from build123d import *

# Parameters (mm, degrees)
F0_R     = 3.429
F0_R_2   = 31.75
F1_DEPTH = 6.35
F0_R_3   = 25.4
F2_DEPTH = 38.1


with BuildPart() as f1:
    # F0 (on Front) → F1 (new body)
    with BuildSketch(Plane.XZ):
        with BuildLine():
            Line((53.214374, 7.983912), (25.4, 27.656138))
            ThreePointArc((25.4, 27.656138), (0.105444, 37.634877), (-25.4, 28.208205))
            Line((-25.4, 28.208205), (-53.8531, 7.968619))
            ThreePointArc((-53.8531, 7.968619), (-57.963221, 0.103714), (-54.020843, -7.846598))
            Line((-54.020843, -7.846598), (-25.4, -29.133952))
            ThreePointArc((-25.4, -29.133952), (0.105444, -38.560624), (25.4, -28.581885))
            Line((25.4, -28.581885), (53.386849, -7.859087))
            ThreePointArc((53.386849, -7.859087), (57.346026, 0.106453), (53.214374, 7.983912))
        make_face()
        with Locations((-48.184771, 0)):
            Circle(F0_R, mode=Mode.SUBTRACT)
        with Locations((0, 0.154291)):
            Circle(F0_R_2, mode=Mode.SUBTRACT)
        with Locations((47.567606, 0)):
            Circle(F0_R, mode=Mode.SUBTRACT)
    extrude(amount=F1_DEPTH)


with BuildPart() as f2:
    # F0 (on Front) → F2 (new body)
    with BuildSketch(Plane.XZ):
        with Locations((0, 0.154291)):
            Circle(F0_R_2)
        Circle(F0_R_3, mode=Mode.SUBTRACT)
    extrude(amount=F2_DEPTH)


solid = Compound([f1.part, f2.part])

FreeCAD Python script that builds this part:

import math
import FreeCAD as App
import Part
import Sketcher
from FreeCAD import Vector
Q = App.Units.Quantity

doc = App.newDocument("Part")
params = doc.addObject("Spreadsheet::Sheet", "Params")
for row, (alias, value) in enumerate([
    ("sketch1_diameter", "2.5 in"),
    ("sketch1_radius", "1.5 in"),
    ("sketch1_diameter2", "0.27 in"),
    ("sketch1_radius2", "0.385 in"),
    ("pad1_length", "0.25 in"),
    ("sketch2_diameter", "2 in"),
    ("sketch2_diameter2", "2.5 in"),
    ("pad2_length", "1.5 in"),
], start=1):
    params.set(f"A{row}", alias)
    params.set(f"B{row}", "=" + value)
    params.setAlias(f"B{row}", alias)

body = doc.addObject("PartDesign::Body", "Body")

# Sketch on XZ plane
sketch1 = body.newObject("Sketcher::SketchObject", "Sketch")
sketch1.AttachmentSupport = (doc.getObject("XZ_Plane"), [""])
sketch1.MapMode = "FlatFace"
sketch1.addGeometry([
    Part.LineSegment(Vector(53.2, 8, 0), Vector(25.4, 27.7, 0)),  # 0
    Part.ArcOfCircle(Part.Circle(Vector(-0.3, -0.5, 0), Vector(0, 0, 1), 38.1), math.radians(48), math.radians(131)),  # 1
    Part.LineSegment(Vector(-25.4, 28.2, 0), Vector(-53.9, 8, 0)),  # 2
    Part.ArcOfCircle(Part.Circle(Vector(-48.2, 0, 0), Vector(0, 0, 1), 9.8), math.radians(125), math.radians(233)),  # 3
    Part.LineSegment(Vector(-54, -7.8, 0), Vector(-25.4, -29.1, 0)),  # 4
    Part.ArcOfCircle(Part.Circle(Vector(-0.3, -0.5, 0), Vector(0, 0, 1), 38.1), math.radians(-131), math.radians(-48)),  # 5
    Part.LineSegment(Vector(25.4, -28.6, 0), Vector(53.4, -7.9, 0)),  # 6
    Part.ArcOfCircle(Part.Circle(Vector(47.6, 0, 0), Vector(0, 0, 1), 9.8), math.radians(-53), math.radians(55)),  # 7
    Part.Circle(Vector(-48.2, 0, 0), Vector(0, 0, 1), 3.4),  # 8
    Part.Circle(Vector(47.6, 0, 0), Vector(0, 0, 1), 3.4),  # 9
    Part.Circle(Vector(0, 0.2, 0), Vector(0, 0, 1), 31.8),  # 10
], False)
sketch1.addConstraint([
    Sketcher.Constraint("Coincident", 0, 2, 1, 1),
    Sketcher.Constraint("Coincident", 1, 2, 2, 1),
    Sketcher.Constraint("Tangent", 2, 2, 3, 1),
    Sketcher.Constraint("Tangent", 3, 2, 4, 1),
    Sketcher.Constraint("Coincident", 4, 2, 5, 1),
    Sketcher.Constraint("Coincident", 5, 2, 6, 1),
    Sketcher.Constraint("Tangent", 6, 2, 7, 1),
    Sketcher.Constraint("Tangent", 7, 2, 0, 1),
    Sketcher.Constraint("Coincident", 5, 3, 1, 3),
    Sketcher.Constraint("Coincident", 8, 3, 3, 3),
    Sketcher.Constraint("Coincident", 9, 3, 7, 3),
    Sketcher.Constraint("Equal", 1, 5),
    Sketcher.Constraint("Equal", 3, 7),
    Sketcher.Constraint("Equal", 8, 9),
    Sketcher.Constraint("PointOnObject", 3, 3, -1),
    Sketcher.Constraint("PointOnObject", 7, 3, -1),
    Sketcher.Constraint("PointOnObject", 10, 3, -2),
    Sketcher.Constraint("Vertical", 1, 2, 4, 2),
    Sketcher.Constraint("Vertical", 0, 2, 5, 2),
    Sketcher.Constraint("Diameter", 10, Q("2.5 in")),
    Sketcher.Constraint("Radius", 1, Q("1.5 in")),
    Sketcher.Constraint("Diameter", 8, Q("0.27 in")),
    Sketcher.Constraint("DistanceX", -1, 1, 0, 2, Q("1 in")),
    Sketcher.Constraint("DistanceX", 1, 2, -1, 1, Q("1 in")),
    Sketcher.Constraint("Radius", 3, Q("0.385 in")),
    Sketcher.Constraint("DistanceX", 2, 2, -1, 1, Q("53.8531 mm")),
    Sketcher.Constraint("DistanceY", 3, 2, -1, 1, Q("7.846598 mm")),
    Sketcher.Constraint("DistanceY", 5, 2, 6, 2, Q("20.722798 mm")),
    Sketcher.Constraint("DistanceY", 6, 2, 7, 2, Q("15.842999 mm")),
    Sketcher.Constraint("DistanceY", -1, 1, 10, 3, Q("0.154291 mm")),
])
sketch1.setExpression("Constraints[19]", "Params.sketch1_diameter")
sketch1.setExpression("Constraints[20]", "Params.sketch1_radius")
sketch1.setExpression("Constraints[21]", "Params.sketch1_diameter2")
sketch1.setExpression("Constraints[24]", "Params.sketch1_radius2")
pad1 = body.newObject("PartDesign::Pad", "Pad")
pad1.Profile = sketch1
pad1.setExpression("Length", "Params.pad1_length")
body2 = doc.addObject("PartDesign::Body", "Body001")

# Sketch on XZ plane
sketch2 = body2.newObject("Sketcher::SketchObject", "Sketch001")
sketch2.AttachmentSupport = (doc.getObject("XZ_Plane001"), [""])
sketch2.MapMode = "FlatFace"
sketch2.addGeometry([
    Part.Circle(Vector(0, 0, 0), Vector(0, 0, 1), 32),
    Part.Circle(Vector(0, 0, 0), Vector(0, 0, 1), 25),
], False)
sketch2.addConstraint([
    Sketcher.Constraint("Coincident", 1, 3, -1, 1),
    Sketcher.Constraint("PointOnObject", 0, 3, -2),
    Sketcher.Constraint("Diameter", 1, Q("2 in")),
    Sketcher.Constraint("Diameter", 0, Q("2.5 in")),
    Sketcher.Constraint("DistanceY", -1, 1, 0, 3, Q("0.154291 mm")),
])
sketch2.setExpression("Constraints[2]", "Params.sketch2_diameter")
sketch2.setExpression("Constraints[3]", "Params.sketch2_diameter2")
pad2 = body2.newObject("PartDesign::Pad", "Pad001")
pad2.Profile = sketch2
pad2.setExpression("Length", "Params.pad2_length")

doc.recompute()
